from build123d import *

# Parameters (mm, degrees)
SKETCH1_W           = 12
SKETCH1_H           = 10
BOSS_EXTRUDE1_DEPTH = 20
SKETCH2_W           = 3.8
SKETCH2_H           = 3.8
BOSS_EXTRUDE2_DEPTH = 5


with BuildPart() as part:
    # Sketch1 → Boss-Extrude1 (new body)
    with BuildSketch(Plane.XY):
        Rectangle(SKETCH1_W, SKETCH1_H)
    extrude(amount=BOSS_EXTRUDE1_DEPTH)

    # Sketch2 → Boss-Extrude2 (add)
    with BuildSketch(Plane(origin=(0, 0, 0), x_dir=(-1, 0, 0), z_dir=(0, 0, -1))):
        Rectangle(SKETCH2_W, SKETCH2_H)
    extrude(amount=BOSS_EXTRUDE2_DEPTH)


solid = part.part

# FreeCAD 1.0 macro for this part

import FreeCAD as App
import Part
import Sketcher
Q = App.Units.Quantity

doc = App.newDocument("Part")
params = doc.addObject("Spreadsheet::Sheet", "Params")
for row, (alias, value) in enumerate([
    ("sketch1_width", "12 mm"),
    ("sketch1_height", "10 mm"),
    ("pad1_length", "20 mm"),
    ("sketch2_width", "3.8 mm"),
    ("pad2_length", "5 mm"),
], start=1):
    params.set(f"A{row}", alias)
    params.set(f"B{row}", "=" + value)
    params.setAlias(f"B{row}", alias)

body = doc.addObject("PartDesign::Body", "Body")

# Sketch on XY plane
sketch1 = doc.addObject("Sketcher::SketchObject", "Sketch")
body.addObject(sketch1)
sketch1.AttachmentSupport = (doc.XY_Plane, [""])
sketch1.MapMode = "FlatFace"
sketch1.addGeometry(Part.LineSegment(App.Vector(-6, 5, 0), App.Vector(-6, -5, 0)), False)
sketch1.addGeometry(Part.LineSegment(App.Vector(-6, -5, 0), App.Vector(6, -5, 0)), False)
sketch1.addGeometry(Part.LineSegment(App.Vector(6, -5, 0), App.Vector(6, 5, 0)), False)
sketch1.addGeometry(Part.LineSegment(App.Vector(6, 5, 0), App.Vector(-6, 5, 0)), False)
sketch1.addConstraint(Sketcher.Constraint("Coincident", 0, 2, 1, 1))
sketch1.addConstraint(Sketcher.Constraint("Coincident", 1, 2, 2, 1))
sketch1.addConstraint(Sketcher.Constraint("Coincident", 2, 2, 3, 1))
sketch1.addConstraint(Sketcher.Constraint("Coincident", 3, 2, 0, 1))
sketch1.addConstraint(Sketcher.Constraint("Vertical", 0))
sketch1.addConstraint(Sketcher.Constraint("Horizontal", 1))
sketch1.addConstraint(Sketcher.Constraint("Vertical", 2))
sketch1.addConstraint(Sketcher.Constraint("Horizontal", 3))
sketch1.addConstraint(Sketcher.Constraint("Symmetric", 0, 2, 2, 2, -1, 1))
sketch1.addConstraint(Sketcher.Constraint("DistanceX", 1, 1, 1, 2, Q("12 mm")))
sketch1.addConstraint(Sketcher.Constraint("DistanceY", 0, 2, 0, 1, Q("10 mm")))
sketch1.setExpression("Constraints[9]", "Params.sketch1_width")
sketch1.setExpression("Constraints[10]", "Params.sketch1_height")
pad1 = doc.addObject("PartDesign::Pad", "Pad")
body.addObject(pad1)
pad1.Profile = sketch1
pad1.setExpression("Length", "Params.pad1_length")

# Sketch on XY plane
sketch2 = doc.addObject("Sketcher::SketchObject", "Sketch001")
body.addObject(sketch2)
sketch2.AttachmentSupport = (doc.XY_Plane, [""])
sketch2.MapMode = "FlatFace"
sketch2.addGeometry(Part.LineSegment(App.Vector(1.9, 1.9, 0), App.Vector(1.9, -1.9, 0)), False)
sketch2.addGeometry(Part.LineSegment(App.Vector(1.9, -1.9, 0), App.Vector(-1.9, -1.9, 0)), False)
sketch2.addGeometry(Part.LineSegment(App.Vector(-1.9, -1.9, 0), App.Vector(-1.9, 1.9, 0)), False)
sketch2.addGeometry(Part.LineSegment(App.Vector(-1.9, 1.9, 0), App.Vector(1.9, 1.9, 0)), False)
sketch2.addConstraint(Sketcher.Constraint("Coincident", 0, 2, 1, 1))
sketch2.addConstraint(Sketcher.Constraint("Coincident", 1, 2, 2, 1))
sketch2.addConstraint(Sketcher.Constraint("Coincident", 2, 2, 3, 1))
sketch2.addConstraint(Sketcher.Constraint("Coincident", 3, 2, 0, 1))
sketch2.addConstraint(Sketcher.Constraint("Vertical", 0))
sketch2.addConstraint(Sketcher.Constraint("Horizontal", 1))
sketch2.addConstraint(Sketcher.Constraint("Vertical", 2))
sketch2.addConstraint(Sketcher.Constraint("Horizontal", 3))
sketch2.addConstraint(Sketcher.Constraint("Symmetric", 0, 2, 2, 2, -1, 1))
sketch2.addConstraint(Sketcher.Constraint("Equal", 3, 0))
sketch2.addConstraint(Sketcher.Constraint("DistanceX", 1, 2, 1, 1, Q("3.8 mm")))
sketch2.setExpression("Constraints[10]", "Params.sketch2_width")
pad2 = doc.addObject("PartDesign::Pad", "Pad001")
body.addObject(pad2)
pad2.Profile = sketch2
pad2.setExpression("Length", "Params.pad2_length")
pad2.Reversed = True

doc.recompute()
